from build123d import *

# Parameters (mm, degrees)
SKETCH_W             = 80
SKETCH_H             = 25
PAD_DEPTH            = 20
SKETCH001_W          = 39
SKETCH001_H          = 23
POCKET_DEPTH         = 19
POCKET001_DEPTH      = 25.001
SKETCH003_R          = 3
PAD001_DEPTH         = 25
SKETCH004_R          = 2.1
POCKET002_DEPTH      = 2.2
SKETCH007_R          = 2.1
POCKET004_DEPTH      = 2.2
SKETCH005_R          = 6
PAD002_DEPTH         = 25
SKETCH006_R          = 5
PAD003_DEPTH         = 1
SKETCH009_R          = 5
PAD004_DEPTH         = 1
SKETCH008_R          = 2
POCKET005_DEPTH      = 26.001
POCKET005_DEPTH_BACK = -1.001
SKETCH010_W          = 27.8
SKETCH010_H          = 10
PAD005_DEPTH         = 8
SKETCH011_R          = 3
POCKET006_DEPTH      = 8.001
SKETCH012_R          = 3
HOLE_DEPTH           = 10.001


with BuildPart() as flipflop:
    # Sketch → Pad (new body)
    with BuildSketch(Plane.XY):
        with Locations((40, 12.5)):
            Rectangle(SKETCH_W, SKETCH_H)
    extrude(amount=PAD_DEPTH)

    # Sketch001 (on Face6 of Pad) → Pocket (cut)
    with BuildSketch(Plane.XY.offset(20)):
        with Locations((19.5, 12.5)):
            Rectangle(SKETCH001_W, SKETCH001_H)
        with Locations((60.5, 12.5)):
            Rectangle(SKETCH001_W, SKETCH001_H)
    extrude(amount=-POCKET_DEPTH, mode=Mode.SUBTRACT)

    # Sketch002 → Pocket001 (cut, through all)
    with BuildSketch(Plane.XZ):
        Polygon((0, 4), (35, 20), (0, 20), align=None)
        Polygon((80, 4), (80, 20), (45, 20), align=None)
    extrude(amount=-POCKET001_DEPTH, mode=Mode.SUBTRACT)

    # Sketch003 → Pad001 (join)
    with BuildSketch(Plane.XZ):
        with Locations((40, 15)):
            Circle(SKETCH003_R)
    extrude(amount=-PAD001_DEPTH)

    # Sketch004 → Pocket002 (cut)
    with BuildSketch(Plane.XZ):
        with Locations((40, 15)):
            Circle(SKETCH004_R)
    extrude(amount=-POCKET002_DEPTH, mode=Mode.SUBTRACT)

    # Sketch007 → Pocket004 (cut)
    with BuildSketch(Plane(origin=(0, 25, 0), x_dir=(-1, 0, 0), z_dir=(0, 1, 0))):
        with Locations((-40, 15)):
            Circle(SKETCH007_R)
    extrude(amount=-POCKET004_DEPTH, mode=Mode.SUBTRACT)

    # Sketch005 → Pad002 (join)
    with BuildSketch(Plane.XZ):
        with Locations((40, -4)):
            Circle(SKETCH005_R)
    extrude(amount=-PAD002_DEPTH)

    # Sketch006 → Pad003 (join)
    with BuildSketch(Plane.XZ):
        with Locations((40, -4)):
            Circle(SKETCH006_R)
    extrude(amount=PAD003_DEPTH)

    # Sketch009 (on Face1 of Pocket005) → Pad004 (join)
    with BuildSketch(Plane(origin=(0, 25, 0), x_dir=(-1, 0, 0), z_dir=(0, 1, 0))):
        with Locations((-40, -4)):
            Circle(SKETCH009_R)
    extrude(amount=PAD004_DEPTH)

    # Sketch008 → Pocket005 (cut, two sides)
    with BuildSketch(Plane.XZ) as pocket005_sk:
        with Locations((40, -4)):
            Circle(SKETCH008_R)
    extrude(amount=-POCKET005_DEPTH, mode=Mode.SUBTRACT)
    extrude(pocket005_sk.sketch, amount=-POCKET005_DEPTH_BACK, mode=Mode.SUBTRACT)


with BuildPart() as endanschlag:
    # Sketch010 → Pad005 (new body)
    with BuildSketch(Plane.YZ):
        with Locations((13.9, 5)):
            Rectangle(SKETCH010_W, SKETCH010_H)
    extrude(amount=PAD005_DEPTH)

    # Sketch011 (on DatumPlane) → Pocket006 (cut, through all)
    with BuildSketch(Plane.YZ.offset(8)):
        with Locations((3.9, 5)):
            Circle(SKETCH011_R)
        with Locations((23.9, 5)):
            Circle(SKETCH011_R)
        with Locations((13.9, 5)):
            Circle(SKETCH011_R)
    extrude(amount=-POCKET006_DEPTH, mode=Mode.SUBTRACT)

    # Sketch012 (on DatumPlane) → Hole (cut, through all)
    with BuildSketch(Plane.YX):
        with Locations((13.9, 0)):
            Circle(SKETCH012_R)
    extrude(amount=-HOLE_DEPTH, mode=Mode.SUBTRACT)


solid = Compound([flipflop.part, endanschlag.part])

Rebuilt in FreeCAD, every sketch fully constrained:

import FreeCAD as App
import Part
import Sketcher
Q = App.Units.Quantity

doc = App.newDocument("Part")
body = doc.addObject("PartDesign::Body", "Body")

sketch1 = body.newObject("Sketcher::SketchObject", "Sketch")
sketch1.AttachmentSupport = (doc.getObject("XY_Plane"), [""])
sketch1.MapMode = "FlatFace"
sketch1.addGeometry(Part.LineSegment(App.Vector(0, 25, 0), App.Vector(0, 0, 0)), False)
sketch1.addGeometry(Part.LineSegment(App.Vector(0, 0, 0), App.Vector(80, 0, 0)), False)
sketch1.addGeometry(Part.LineSegment(App.Vector(80, 0, 0), App.Vector(80, 25, 0)), False)
sketch1.addGeometry(Part.LineSegment(App.Vector(80, 25, 0), App.Vector(0, 25, 0)), False)
sketch1.addConstraint(Sketcher.Constraint("Coincident", 0, 2, 1, 1))
sketch1.addConstraint(Sketcher.Constraint("Coincident", 1, 2, 2, 1))
sketch1.addConstraint(Sketcher.Constraint("Coincident", 2, 2, 3, 1))
sketch1.addConstraint(Sketcher.Constraint("Coincident", 3, 2, 0, 1))
sketch1.addConstraint(Sketcher.Constraint("Vertical", 0))
sketch1.addConstraint(Sketcher.Constraint("Horizontal", 1))
sketch1.addConstraint(Sketcher.Constraint("Vertical", 2))
sketch1.addConstraint(Sketcher.Constraint("Horizontal", 3))
sketch1.addConstraint(Sketcher.Constraint("Coincident", 0, 2, -1, 1))
sketch1.addConstraint(Sketcher.Constraint("DistanceX", 1, 1, 1, 2, Q("80 mm")))
sketch1.addConstraint(Sketcher.Constraint("DistanceY", 0, 2, 0, 1, Q("25 mm")))
pad1 = body.newObject("PartDesign::Pad", "Pad")
pad1.Profile = sketch1
pad1.Length = 20

sketch2 = body.newObject("Sketcher::SketchObject", "Sketch001")
sketch2.AttachmentSupport = (doc.getObject("XY_Plane"), [""])
sketch2.MapMode = "FlatFace"
sketch2.AttachmentOffset = App.Placement(App.Vector(0, 0, 20), App.Rotation())
sketch2.addGeometry(Part.LineSegment(App.Vector(0, 24, 0), App.Vector(0, 1, 0)), False)
sketch2.addGeometry(Part.LineSegment(App.Vector(0, 1, 0), App.Vector(39, 1, 0)), False)
sketch2.addGeometry(Part.LineSegment(App.Vector(39, 1, 0), App.Vector(39, 24, 0)), False)
sketch2.addGeometry(Part.LineSegment(App.Vector(39, 24, 0), App.Vector(0, 24, 0)), False)
sketch2.addGeometry(Part.LineSegment(App.Vector(41, 24, 0), App.Vector(41, 1, 0)), False)
sketch2.addGeometry(Part.LineSegment(App.Vector(41, 1, 0), App.Vector(80, 1, 0)), False)
sketch2.addGeometry(Part.LineSegment(App.Vector(80, 1, 0), App.Vector(80, 24, 0)), False)
sketch2.addGeometry(Part.LineSegment(App.Vector(80, 24, 0), App.Vector(41, 24, 0)), False)
sketch2.addConstraint(Sketcher.Constraint("Coincident", 0, 2, 1, 1))
sketch2.addConstraint(Sketcher.Constraint("Coincident", 1, 2, 2, 1))
sketch2.addConstraint(Sketcher.Constraint("Coincident", 2, 2, 3, 1))
sketch2.addConstraint(Sketcher.Constraint("Coincident", 3, 2, 0, 1))
sketch2.addConstraint(Sketcher.Constraint("Coincident", 4, 2, 5, 1))
sketch2.addConstraint(Sketcher.Constraint("Coincident", 5, 2, 6, 1))
sketch2.addConstraint(Sketcher.Constraint("Coincident", 6, 2, 7, 1))
sketch2.addConstraint(Sketcher.Constraint("Coincident", 7, 2, 4, 1))
sketch2.addConstraint(Sketcher.Constraint("Vertical", 0))
sketch2.addConstraint(Sketcher.Constraint("Horizontal", 1))
sketch2.addConstraint(Sketcher.Constraint("Vertical", 2))
sketch2.addConstraint(Sketcher.Constraint("Horizontal", 3))
sketch2.addConstraint(Sketcher.Constraint("Vertical", 4))
sketch2.addConstraint(Sketcher.Constraint("Horizontal", 5))
sketch2.addConstraint(Sketcher.Constraint("Vertical", 6))
sketch2.addConstraint(Sketcher.Constraint("Horizontal", 7))
sketch2.addConstraint(Sketcher.Constraint("PointOnObject", 0, 2, -2))
sketch2.addConstraint(Sketcher.Constraint("Horizontal", 1, 2, 4, 2))
sketch2.addConstraint(Sketcher.Constraint("Horizontal", 3, 2, 6, 2))
sketch2.addConstraint(Sketcher.Constraint("Equal", 3, 5))
sketch2.addConstraint(Sketcher.Constraint("DistanceX", 1, 1, 1, 2, Q("39 mm")))
sketch2.addConstraint(Sketcher.Constraint("DistanceY", 0, 2, 0, 1, Q("23 mm")))
sketch2.addConstraint(Sketcher.Constraint("DistanceY", -1, 1, 0, 2, Q("1 mm")))
sketch2.addConstraint(Sketcher.Constraint("DistanceX", -1, 1, 4, 2, Q("41 mm")))
pocket1 = body.newObject("PartDesign::Pocket", "Pocket")
pocket1.Profile = sketch2
pocket1.Length = 19

sketch3 = body.newObject("Sketcher::SketchObject", "Sketch002")
sketch3.AttachmentSupport = (doc.getObject("XZ_Plane"), [""])
sketch3.MapMode = "FlatFace"
sketch3.addGeometry(Part.LineSegment(App.Vector(0, 4, 0), App.Vector(35, 20, 0)), False)
sketch3.addGeometry(Part.LineSegment(App.Vector(35, 20, 0), App.Vector(0, 20, 0)), False)
sketch3.addGeometry(Part.LineSegment(App.Vector(0, 20, 0), App.Vector(0, 4, 0)), False)
sketch3.addGeometry(Part.LineSegment(App.Vector(80, 4, 0), App.Vector(80, 20, 0)), False)
sketch3.addGeometry(Part.LineSegment(App.Vector(80, 20, 0), App.Vector(45, 20, 0)), False)
sketch3.addGeometry(Part.LineSegment(App.Vector(45, 20, 0), App.Vector(80, 4, 0)), False)
sketch3.addConstraint(Sketcher.Constraint("Coincident", 0, 2, 1, 1))
sketch3.addConstraint(Sketcher.Constraint("Coincident", 1, 2, 2, 1))
sketch3.addConstraint(Sketcher.Constraint("Coincident", 2, 2, 0, 1))
sketch3.addConstraint(Sketcher.Constraint("Coincident", 3, 2, 4, 1))
sketch3.addConstraint(Sketcher.Constraint("Coincident", 4, 2, 5, 1))
sketch3.addConstraint(Sketcher.Constraint("Coincident", 5, 2, 3, 1))
sketch3.addConstraint(Sketcher.Constraint("Horizontal", 1))
sketch3.addConstraint(Sketcher.Constraint("Vertical", 2))
sketch3.addConstraint(Sketcher.Constraint("Vertical", 3))
sketch3.addConstraint(Sketcher.Constraint("Horizontal", 4))
sketch3.addConstraint(Sketcher.Constraint("PointOnObject", 1, 2, -2))
sketch3.addConstraint(Sketcher.Constraint("Horizontal", 1, 2, 3, 2))
sketch3.addConstraint(Sketcher.Constraint("Horizontal", 2, 2, 5, 2))
sketch3.addConstraint(Sketcher.Constraint("Equal", 1, 4))
sketch3.addConstraint(Sketcher.Constraint("DistanceX", 1, 2, 1, 1, Q("35 mm")))
sketch3.addConstraint(Sketcher.Constraint("DistanceY", 2, 2, 2, 1, Q("16 mm")))
sketch3.addConstraint(Sketcher.Constraint("DistanceY", -1, 1, 0, 2, Q("20 mm")))
sketch3.addConstraint(Sketcher.Constraint("DistanceX", -1, 1, 3, 2, Q("80 mm")))
pocket2 = body.newObject("PartDesign::Pocket", "Pocket001")
pocket2.Profile = sketch3
pocket2.Type = "ThroughAll"

sketch4 = body.newObject("Sketcher::SketchObject", "Sketch003")
sketch4.AttachmentSupport = (doc.getObject("XZ_Plane"), [""])
sketch4.MapMode = "FlatFace"
sketch4.addGeometry(Part.Circle(App.Vector(40, 15, 0), App.Vector(0, 0, 1), 3), False)
sketch4.addConstraint(Sketcher.Constraint("Diameter", 0, Q("6 mm")))
sketch4.addConstraint(Sketcher.Constraint("DistanceX", -1, 1, 0, 3, Q("40 mm")))
sketch4.addConstraint(Sketcher.Constraint("DistanceY", -1, 1, 0, 3, Q("15 mm")))
pad2 = body.newObject("PartDesign::Pad", "Pad001")
pad2.Profile = sketch4
pad2.Length = 25
pad2.Reversed = True

sketch5 = body.newObject("Sketcher::SketchObject", "Sketch004")
sketch5.AttachmentSupport = (doc.getObject("XZ_Plane"), [""])
sketch5.MapMode = "FlatFace"
sketch5.addGeometry(Part.Circle(App.Vector(40, 15, 0), App.Vector(0, 0, 1), 2.1), False)
sketch5.addConstraint(Sketcher.Constraint("Diameter", 0, Q("4.2 mm")))
sketch5.addConstraint(Sketcher.Constraint("DistanceX", -1, 1, 0, 3, Q("40 mm")))
sketch5.addConstraint(Sketcher.Constraint("DistanceY", -1, 1, 0, 3, Q("15 mm")))
pocket3 = body.newObject("PartDesign::Pocket", "Pocket002")
pocket3.Profile = sketch5
pocket3.Length = 2.2

sketch6 = body.newObject("Sketcher::SketchObject", "Sketch005")
sketch6.AttachmentSupport = (doc.getObject("XZ_Plane"), [""])
sketch6.MapMode = "FlatFace"
sketch6.AttachmentOffset = App.Placement(App.Vector(0, 0, -25), App.Rotation())
sketch6.addGeometry(Part.Circle(App.Vector(40, 15, 0), App.Vector(0, 0, 1), 2.1), False)
sketch6.addConstraint(Sketcher.Constraint("Diameter", 0, Q("4.2 mm")))
sketch6.addConstraint(Sketcher.Constraint("DistanceX", -1, 1, 0, 3, Q("40 mm")))
sketch6.addConstraint(Sketcher.Constraint("DistanceY", -1, 1, 0, 3, Q("15 mm")))
pocket4 = body.newObject("PartDesign::Pocket", "Pocket003")
pocket4.Profile = sketch6
pocket4.Length = 2.2
pocket4.Reversed = True

sketch7 = body.newObject("Sketcher::SketchObject", "Sketch006")
sketch7.AttachmentSupport = (doc.getObject("XZ_Plane"), [""])
sketch7.MapMode = "FlatFace"
sketch7.addGeometry(Part.Circle(App.Vector(40, -4, 0), App.Vector(0, 0, 1), 6), False)
sketch7.addConstraint(Sketcher.Constraint("Diameter", 0, Q("12 mm")))
sketch7.addConstraint(Sketcher.Constraint("DistanceX", -1, 1, 0, 3, Q("40 mm")))
sketch7.addConstraint(Sketcher.Constraint("DistanceY", 0, 3, -1, 1, Q("4 mm")))
pad3 = body.newObject("PartDesign::Pad", "Pad002")
pad3.Profile = sketch7
pad3.Length = 25
pad3.Reversed = True

sketch8 = body.newObject("Sketcher::SketchObject", "Sketch007")
sketch8.AttachmentSupport = (doc.getObject("XZ_Plane"), [""])
sketch8.MapMode = "FlatFace"
sketch8.addGeometry(Part.Circle(App.Vector(40, -4, 0), App.Vector(0, 0, 1), 5), False)
sketch8.addConstraint(Sketcher.Constraint("Diameter", 0, Q("10 mm")))
sketch8.addConstraint(Sketcher.Constraint("DistanceX", -1, 1, 0, 3, Q("40 mm")))
sketch8.addConstraint(Sketcher.Constraint("DistanceY", 0, 3, -1, 1, Q("4 mm")))
pad4 = body.newObject("PartDesign::Pad", "Pad003")
pad4.Profile = sketch8
pad4.Length = 1

sketch9 = body.newObject("Sketcher::SketchObject", "Sketch008")
sketch9.AttachmentSupport = (doc.getObject("XZ_Plane"), [""])
sketch9.MapMode = "FlatFace"
sketch9.AttachmentOffset = App.Placement(App.Vector(0, 0, -25), App.Rotation())
sketch9.addGeometry(Part.Circle(App.Vector(40, -4, 0), App.Vector(0, 0, 1), 5), False)
sketch9.addConstraint(Sketcher.Constraint("Diameter", 0, Q("10 mm")))
sketch9.addConstraint(Sketcher.Constraint("DistanceX", -1, 1, 0, 3, Q("40 mm")))
sketch9.addConstraint(Sketcher.Constraint("DistanceY", 0, 3, -1, 1, Q("4 mm")))
pad5 = body.newObject("PartDesign::Pad", "Pad004")
pad5.Profile = sketch9
pad5.Length = 1
pad5.Reversed = True

sketch10 = body.newObject("Sketcher::SketchObject", "Sketch009")
sketch10.AttachmentSupport = (doc.getObject("XZ_Plane"), [""])
sketch10.MapMode = "FlatFace"
sketch10.addGeometry(Part.Circle(App.Vector(40, -4, 0), App.Vector(0, 0, 1), 2), False)
sketch10.addConstraint(Sketcher.Constraint("Diameter", 0, Q("4 mm")))
sketch10.addConstraint(Sketcher.Constraint("DistanceX", -1, 1, 0, 3, Q("40 mm")))
sketch10.addConstraint(Sketcher.Constraint("DistanceY", 0, 3, -1, 1, Q("4 mm")))
pocket5 = body.newObject("PartDesign::Pocket", "Pocket004")
pocket5.Profile = sketch10
pocket5.Type = "ThroughAll"
pocket5.Midplane = True
body2 = doc.addObject("PartDesign::Body", "Body001")

sketch11 = body2.newObject("Sketcher::SketchObject", "Sketch010")
sketch11.AttachmentSupport = (doc.getObject("YZ_Plane001"), [""])
sketch11.MapMode = "FlatFace"
sketch11.addGeometry(Part.LineSegment(App.Vector(0, 10, 0), App.Vector(0, 0, 0)), False)
sketch11.addGeometry(Part.LineSegment(App.Vector(0, 0, 0), App.Vector(27.8, 0, 0)), False)
sketch11.addGeometry(Part.LineSegment(App.Vector(27.8, 0, 0), App.Vector(27.8, 10, 0)), False)
sketch11.addGeometry(Part.LineSegment(App.Vector(27.8, 10, 0), App.Vector(0, 10, 0)), False)
sketch11.addConstraint(Sketcher.Constraint("Coincident", 0, 2, 1, 1))
sketch11.addConstraint(Sketcher.Constraint("Coincident", 1, 2, 2, 1))
sketch11.addConstraint(Sketcher.Constraint("Coincident", 2, 2, 3, 1))
sketch11.addConstraint(Sketcher.Constraint("Coincident", 3, 2, 0, 1))
sketch11.addConstraint(Sketcher.Constraint("Vertical", 0))
sketch11.addConstraint(Sketcher.Constraint("Horizontal", 1))
sketch11.addConstraint(Sketcher.Constraint("Vertical", 2))
sketch11.addConstraint(Sketcher.Constraint("Horizontal", 3))
sketch11.addConstraint(Sketcher.Constraint("Coincident", 0, 2, -1, 1))
sketch11.addConstraint(Sketcher.Constraint("DistanceY", 0, 2, 0, 1, Q("10 mm")))
sketch11.addConstraint(Sketcher.Constraint("DistanceX", 1, 1, 1, 2, Q("27.8 mm")))
pad6 = body2.newObject("PartDesign::Pad", "Pad005")
pad6.Profile = sketch11
pad6.Length = 8

sketch12 = body2.newObject("Sketcher::SketchObject", "Sketch011")
sketch12.AttachmentSupport = (doc.getObject("YZ_Plane001"), [""])
sketch12.MapMode = "FlatFace"
sketch12.AttachmentOffset = App.Placement(App.Vector(0, 0, 8), App.Rotation())
sketch12.addGeometry(Part.Circle(App.Vector(3.9, 5, 0), App.Vector(0, 0, 1), 3), False)
sketch12.addGeometry(Part.Circle(App.Vector(23.9, 5, 0), App.Vector(0, 0, 1), 3), False)
sketch12.addGeometry(Part.Circle(App.Vector(13.9, 5, 0), App.Vector(0, 0, 1), 3), False)
sketch12.addConstraint(Sketcher.Constraint("Equal", 0, 1))
sketch12.addConstraint(Sketcher.Constraint("Equal", 1, 2))
sketch12.addConstraint(Sketcher.Constraint("Horizontal", 0, 3, 1, 3))
sketch12.addConstraint(Sketcher.Constraint("Horizontal", 1, 3, 2, 3))
sketch12.addConstraint(Sketcher.Constraint("Diameter", 0, Q("6 mm")))
sketch12.addConstraint(Sketcher.Constraint("DistanceY", -1, 1, 0, 3, Q("5 mm")))
sketch12.addConstraint(Sketcher.Constraint("DistanceX", 0, 3, 1, 3, Q("20 mm")))
sketch12.addConstraint(Sketcher.Constraint("DistanceX", 2, 3, 1, 3, Q("10 mm")))
sketch12.addConstraint(Sketcher.Constraint("DistanceX", -1, 1, 0, 3, Q("3.9 mm")))
pocket6 = body2.newObject("PartDesign::Pocket", "Pocket005")
pocket6.Profile = sketch12
pocket6.Type = "ThroughAll"

sketch13 = body2.newObject("Sketcher::SketchObject", "Sketch012")
sketch13.AttachmentSupport = (doc.getObject("XY_Plane001"), [""])
sketch13.MapMode = "FlatFace"
sketch13.addGeometry(Part.Circle(App.Vector(0, 13.9, 0), App.Vector(0, 0, 1), 3), False)
sketch13.addConstraint(Sketcher.Constraint("PointOnObject", 0, 3, -2))
sketch13.addConstraint(Sketcher.Constraint("Diameter", 0, Q("6 mm")))
sketch13.addConstraint(Sketcher.Constraint("DistanceY", -1, 1, 0, 3, Q("13.9 mm")))
pocket7 = body2.newObject("PartDesign::Pocket", "Pocket006")
pocket7.Profile = sketch13
pocket7.Type = "ThroughAll"
pocket7.Reversed = True

doc.recompute()
